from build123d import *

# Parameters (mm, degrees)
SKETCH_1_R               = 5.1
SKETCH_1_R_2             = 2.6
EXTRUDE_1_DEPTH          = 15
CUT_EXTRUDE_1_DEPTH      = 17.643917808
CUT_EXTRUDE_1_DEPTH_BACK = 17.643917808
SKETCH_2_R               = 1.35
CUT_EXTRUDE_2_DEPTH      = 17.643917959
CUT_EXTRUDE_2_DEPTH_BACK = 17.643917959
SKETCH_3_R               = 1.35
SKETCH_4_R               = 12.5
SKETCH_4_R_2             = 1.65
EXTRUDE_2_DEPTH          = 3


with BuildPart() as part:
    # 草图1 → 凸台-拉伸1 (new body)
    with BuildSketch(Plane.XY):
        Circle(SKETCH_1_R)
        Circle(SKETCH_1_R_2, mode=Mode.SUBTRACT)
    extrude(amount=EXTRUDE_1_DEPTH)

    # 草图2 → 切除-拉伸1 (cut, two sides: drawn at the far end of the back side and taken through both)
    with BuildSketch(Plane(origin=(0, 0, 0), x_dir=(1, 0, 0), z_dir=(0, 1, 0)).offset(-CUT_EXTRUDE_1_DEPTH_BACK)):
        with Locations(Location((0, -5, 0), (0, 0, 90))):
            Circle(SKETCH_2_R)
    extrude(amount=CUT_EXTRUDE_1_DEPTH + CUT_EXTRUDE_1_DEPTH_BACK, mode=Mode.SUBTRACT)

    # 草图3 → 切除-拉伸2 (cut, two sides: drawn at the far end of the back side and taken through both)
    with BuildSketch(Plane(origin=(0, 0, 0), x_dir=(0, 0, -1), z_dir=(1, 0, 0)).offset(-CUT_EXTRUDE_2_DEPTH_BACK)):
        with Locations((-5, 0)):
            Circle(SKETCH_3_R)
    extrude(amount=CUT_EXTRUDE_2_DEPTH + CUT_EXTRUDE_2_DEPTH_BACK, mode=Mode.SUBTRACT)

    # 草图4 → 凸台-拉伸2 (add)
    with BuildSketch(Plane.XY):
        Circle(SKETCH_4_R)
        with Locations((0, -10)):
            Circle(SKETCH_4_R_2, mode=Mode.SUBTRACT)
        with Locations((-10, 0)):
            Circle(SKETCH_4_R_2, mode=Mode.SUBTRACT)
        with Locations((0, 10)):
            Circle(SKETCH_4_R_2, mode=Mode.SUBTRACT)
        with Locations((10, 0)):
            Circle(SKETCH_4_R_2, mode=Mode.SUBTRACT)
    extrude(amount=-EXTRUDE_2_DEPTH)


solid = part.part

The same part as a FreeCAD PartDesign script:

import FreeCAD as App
import Part
import Sketcher

doc = App.newDocument("Part")
params = doc.addObject("Spreadsheet::Sheet", "Params")
for row, (alias, value) in enumerate([
    ("sketch1_diameter", "10.2 mm"),
    ("sketch1_diameter2", "5.2 mm"),
    ("pad1_length", "15 mm"),
    ("sketch2_diameter", "2.7 mm"),
    ("sketch3_diameter", "2.7 mm"),
    ("sketch4_diameter", "25 mm"),
    ("sketch4_diameter2", "3.3 mm"),
    ("pad2_length", "3 mm"),
], start=1):
    params.set(f"A{row}", alias)
    params.set(f"B{row}", "=" + value)
    params.setAlias(f"B{row}", alias)

body = doc.addObject("PartDesign::Body", "Body")

# Sketch on XY plane
sketch1 = doc.addObject("Sketcher::SketchObject", "Sketch")
body.addObject(sketch1)
sketch1.AttachmentSupport = (doc.XY_Plane, [""])
sketch1.MapMode = "FlatFace"
sketch1.addGeometry([
    Part.Circle(App.Vector(0, 0, 0), App.Vector(0, 0, 1), 5.1),
    Part.Circle(App.Vector(0, 0, 0), App.Vector(0, 0, 1), 2.6),
], False)
sketch1.addConstraint([
    Sketcher.Constraint("Coincident", 0, 3, -1, 1),
    Sketcher.Constraint("Coincident", 1, 3, -1, 1),
    Sketcher.Constraint("Diameter", 0, 10.2),
    Sketcher.Constraint("Diameter", 1, 5.2),
])
sketch1.setExpression("Constraints[2]", "Params.sketch1_diameter")
sketch1.setExpression("Constraints[3]", "Params.sketch1_diameter2")
pad1 = doc.addObject("PartDesign::Pad", "Pad")
body.addObject(pad1)
pad1.Profile = sketch1
pad1.setExpression("Length", "Params.pad1_length")

# Sketch on XZ plane
sketch2 = doc.addObject("Sketcher::SketchObject", "Sketch001")
body.addObject(sketch2)
sketch2.AttachmentSupport = (doc.XZ_Plane, [""])
sketch2.MapMode = "FlatFace"
sketch2.addGeometry(Part.Circle(App.Vector(0, 5, 0), App.Vector(0, 0, 1), 1.4), False)
sketch2.addConstraint([
    Sketcher.Constraint("PointOnObject", 0, 3, -2),
    Sketcher.Constraint("Diameter", 0, 2.7),
    Sketcher.Constraint("DistanceY", -1, 1, 0, 3, 5.0),
])
sketch2.setExpression("Constraints[1]", "Params.sketch2_diameter")
pocket1 = doc.addObject("PartDesign::Pocket", "Pocket")
body.addObject(pocket1)
pocket1.Profile = sketch2
pocket1.Type = "ThroughAll"
pocket1.Midplane = True

# Sketch on YZ plane
sketch3 = doc.addObject("Sketcher::SketchObject", "Sketch002")
body.addObject(sketch3)
sketch3.AttachmentSupport = (doc.YZ_Plane, [""])
sketch3.MapMode = "FlatFace"
sketch3.addGeometry(Part.Circle(App.Vector(0, 5, 0), App.Vector(0, 0, 1), 1.4), False)
sketch3.addConstraint([
    Sketcher.Constraint("PointOnObject", 0, 3, -2),
    Sketcher.Constraint("Diameter", 0, 2.7),
    Sketcher.Constraint("DistanceY", -1, 1, 0, 3, 5.0),
])
sketch3.setExpression("Constraints[1]", "Params.sketch3_diameter")
pocket2 = doc.addObject("PartDesign::Pocket", "Pocket001")
body.addObject(pocket2)
pocket2.Profile = sketch3
pocket2.Type = "ThroughAll"
pocket2.Midplane = True

# Sketch on XY plane
sketch4 = doc.addObject("Sketcher::SketchObject", "Sketch003")
body.addObject(sketch4)
sketch4.AttachmentSupport = (doc.XY_Plane, [""])
sketch4.MapMode = "FlatFace"
sketch4.addGeometry([
    Part.Circle(App.Vector(0, 0, 0), App.Vector(0, 0, 1), 12.5),  # 0
    Part.Circle(App.Vector(-10, 0, 0), App.Vector(0, 0, 1), 1.6),  # 1
    Part.Circle(App.Vector(0, -10, 0), App.Vector(0, 0, 1), 1.6),  # 2
    Part.Circle(App.Vector(10, 0, 0), App.Vector(0, 0, 1), 1.6),  # 3
    Part.Circle(App.Vector(0, 10, 0), App.Vector(0, 0, 1), 1.6),  # 4
], False)
sketch4.addConstraint([
    Sketcher.Constraint("Coincident", 0, 3, -1, 1),
    Sketcher.Constraint("Equal", 1, 2),
    Sketcher.Constraint("Equal", 2, 3),
    Sketcher.Constraint("Equal", 3, 4),
    Sketcher.Constraint("Symmetric", 1, 3, 3, 3, -1, 1),
    Sketcher.Constraint("Symmetric", 2, 3, 4, 3, -1, 1),
    Sketcher.Constraint("PointOnObject", 1, 3, -1),
    Sketcher.Constraint("PointOnObject", 2, 3, -2),
    Sketcher.Constraint("Diameter", 0, 25.0),
    Sketcher.Constraint("Diameter", 1, 3.3),
    Sketcher.Constraint("DistanceX", 1, 3, -1, 1, 10.0),
    Sketcher.Constraint("DistanceY", 2, 3, -1, 1, 10.0),
])
sketch4.setExpression("Constraints[8]", "Params.sketch4_diameter")
sketch4.setExpression("Constraints[9]", "Params.sketch4_diameter2")
pad2 = doc.addObject("PartDesign::Pad", "Pad001")
body.addObject(pad2)
pad2.Profile = sketch4
pad2.setExpression("Length", "Params.pad2_length")
pad2.Reversed = True

doc.recompute()
